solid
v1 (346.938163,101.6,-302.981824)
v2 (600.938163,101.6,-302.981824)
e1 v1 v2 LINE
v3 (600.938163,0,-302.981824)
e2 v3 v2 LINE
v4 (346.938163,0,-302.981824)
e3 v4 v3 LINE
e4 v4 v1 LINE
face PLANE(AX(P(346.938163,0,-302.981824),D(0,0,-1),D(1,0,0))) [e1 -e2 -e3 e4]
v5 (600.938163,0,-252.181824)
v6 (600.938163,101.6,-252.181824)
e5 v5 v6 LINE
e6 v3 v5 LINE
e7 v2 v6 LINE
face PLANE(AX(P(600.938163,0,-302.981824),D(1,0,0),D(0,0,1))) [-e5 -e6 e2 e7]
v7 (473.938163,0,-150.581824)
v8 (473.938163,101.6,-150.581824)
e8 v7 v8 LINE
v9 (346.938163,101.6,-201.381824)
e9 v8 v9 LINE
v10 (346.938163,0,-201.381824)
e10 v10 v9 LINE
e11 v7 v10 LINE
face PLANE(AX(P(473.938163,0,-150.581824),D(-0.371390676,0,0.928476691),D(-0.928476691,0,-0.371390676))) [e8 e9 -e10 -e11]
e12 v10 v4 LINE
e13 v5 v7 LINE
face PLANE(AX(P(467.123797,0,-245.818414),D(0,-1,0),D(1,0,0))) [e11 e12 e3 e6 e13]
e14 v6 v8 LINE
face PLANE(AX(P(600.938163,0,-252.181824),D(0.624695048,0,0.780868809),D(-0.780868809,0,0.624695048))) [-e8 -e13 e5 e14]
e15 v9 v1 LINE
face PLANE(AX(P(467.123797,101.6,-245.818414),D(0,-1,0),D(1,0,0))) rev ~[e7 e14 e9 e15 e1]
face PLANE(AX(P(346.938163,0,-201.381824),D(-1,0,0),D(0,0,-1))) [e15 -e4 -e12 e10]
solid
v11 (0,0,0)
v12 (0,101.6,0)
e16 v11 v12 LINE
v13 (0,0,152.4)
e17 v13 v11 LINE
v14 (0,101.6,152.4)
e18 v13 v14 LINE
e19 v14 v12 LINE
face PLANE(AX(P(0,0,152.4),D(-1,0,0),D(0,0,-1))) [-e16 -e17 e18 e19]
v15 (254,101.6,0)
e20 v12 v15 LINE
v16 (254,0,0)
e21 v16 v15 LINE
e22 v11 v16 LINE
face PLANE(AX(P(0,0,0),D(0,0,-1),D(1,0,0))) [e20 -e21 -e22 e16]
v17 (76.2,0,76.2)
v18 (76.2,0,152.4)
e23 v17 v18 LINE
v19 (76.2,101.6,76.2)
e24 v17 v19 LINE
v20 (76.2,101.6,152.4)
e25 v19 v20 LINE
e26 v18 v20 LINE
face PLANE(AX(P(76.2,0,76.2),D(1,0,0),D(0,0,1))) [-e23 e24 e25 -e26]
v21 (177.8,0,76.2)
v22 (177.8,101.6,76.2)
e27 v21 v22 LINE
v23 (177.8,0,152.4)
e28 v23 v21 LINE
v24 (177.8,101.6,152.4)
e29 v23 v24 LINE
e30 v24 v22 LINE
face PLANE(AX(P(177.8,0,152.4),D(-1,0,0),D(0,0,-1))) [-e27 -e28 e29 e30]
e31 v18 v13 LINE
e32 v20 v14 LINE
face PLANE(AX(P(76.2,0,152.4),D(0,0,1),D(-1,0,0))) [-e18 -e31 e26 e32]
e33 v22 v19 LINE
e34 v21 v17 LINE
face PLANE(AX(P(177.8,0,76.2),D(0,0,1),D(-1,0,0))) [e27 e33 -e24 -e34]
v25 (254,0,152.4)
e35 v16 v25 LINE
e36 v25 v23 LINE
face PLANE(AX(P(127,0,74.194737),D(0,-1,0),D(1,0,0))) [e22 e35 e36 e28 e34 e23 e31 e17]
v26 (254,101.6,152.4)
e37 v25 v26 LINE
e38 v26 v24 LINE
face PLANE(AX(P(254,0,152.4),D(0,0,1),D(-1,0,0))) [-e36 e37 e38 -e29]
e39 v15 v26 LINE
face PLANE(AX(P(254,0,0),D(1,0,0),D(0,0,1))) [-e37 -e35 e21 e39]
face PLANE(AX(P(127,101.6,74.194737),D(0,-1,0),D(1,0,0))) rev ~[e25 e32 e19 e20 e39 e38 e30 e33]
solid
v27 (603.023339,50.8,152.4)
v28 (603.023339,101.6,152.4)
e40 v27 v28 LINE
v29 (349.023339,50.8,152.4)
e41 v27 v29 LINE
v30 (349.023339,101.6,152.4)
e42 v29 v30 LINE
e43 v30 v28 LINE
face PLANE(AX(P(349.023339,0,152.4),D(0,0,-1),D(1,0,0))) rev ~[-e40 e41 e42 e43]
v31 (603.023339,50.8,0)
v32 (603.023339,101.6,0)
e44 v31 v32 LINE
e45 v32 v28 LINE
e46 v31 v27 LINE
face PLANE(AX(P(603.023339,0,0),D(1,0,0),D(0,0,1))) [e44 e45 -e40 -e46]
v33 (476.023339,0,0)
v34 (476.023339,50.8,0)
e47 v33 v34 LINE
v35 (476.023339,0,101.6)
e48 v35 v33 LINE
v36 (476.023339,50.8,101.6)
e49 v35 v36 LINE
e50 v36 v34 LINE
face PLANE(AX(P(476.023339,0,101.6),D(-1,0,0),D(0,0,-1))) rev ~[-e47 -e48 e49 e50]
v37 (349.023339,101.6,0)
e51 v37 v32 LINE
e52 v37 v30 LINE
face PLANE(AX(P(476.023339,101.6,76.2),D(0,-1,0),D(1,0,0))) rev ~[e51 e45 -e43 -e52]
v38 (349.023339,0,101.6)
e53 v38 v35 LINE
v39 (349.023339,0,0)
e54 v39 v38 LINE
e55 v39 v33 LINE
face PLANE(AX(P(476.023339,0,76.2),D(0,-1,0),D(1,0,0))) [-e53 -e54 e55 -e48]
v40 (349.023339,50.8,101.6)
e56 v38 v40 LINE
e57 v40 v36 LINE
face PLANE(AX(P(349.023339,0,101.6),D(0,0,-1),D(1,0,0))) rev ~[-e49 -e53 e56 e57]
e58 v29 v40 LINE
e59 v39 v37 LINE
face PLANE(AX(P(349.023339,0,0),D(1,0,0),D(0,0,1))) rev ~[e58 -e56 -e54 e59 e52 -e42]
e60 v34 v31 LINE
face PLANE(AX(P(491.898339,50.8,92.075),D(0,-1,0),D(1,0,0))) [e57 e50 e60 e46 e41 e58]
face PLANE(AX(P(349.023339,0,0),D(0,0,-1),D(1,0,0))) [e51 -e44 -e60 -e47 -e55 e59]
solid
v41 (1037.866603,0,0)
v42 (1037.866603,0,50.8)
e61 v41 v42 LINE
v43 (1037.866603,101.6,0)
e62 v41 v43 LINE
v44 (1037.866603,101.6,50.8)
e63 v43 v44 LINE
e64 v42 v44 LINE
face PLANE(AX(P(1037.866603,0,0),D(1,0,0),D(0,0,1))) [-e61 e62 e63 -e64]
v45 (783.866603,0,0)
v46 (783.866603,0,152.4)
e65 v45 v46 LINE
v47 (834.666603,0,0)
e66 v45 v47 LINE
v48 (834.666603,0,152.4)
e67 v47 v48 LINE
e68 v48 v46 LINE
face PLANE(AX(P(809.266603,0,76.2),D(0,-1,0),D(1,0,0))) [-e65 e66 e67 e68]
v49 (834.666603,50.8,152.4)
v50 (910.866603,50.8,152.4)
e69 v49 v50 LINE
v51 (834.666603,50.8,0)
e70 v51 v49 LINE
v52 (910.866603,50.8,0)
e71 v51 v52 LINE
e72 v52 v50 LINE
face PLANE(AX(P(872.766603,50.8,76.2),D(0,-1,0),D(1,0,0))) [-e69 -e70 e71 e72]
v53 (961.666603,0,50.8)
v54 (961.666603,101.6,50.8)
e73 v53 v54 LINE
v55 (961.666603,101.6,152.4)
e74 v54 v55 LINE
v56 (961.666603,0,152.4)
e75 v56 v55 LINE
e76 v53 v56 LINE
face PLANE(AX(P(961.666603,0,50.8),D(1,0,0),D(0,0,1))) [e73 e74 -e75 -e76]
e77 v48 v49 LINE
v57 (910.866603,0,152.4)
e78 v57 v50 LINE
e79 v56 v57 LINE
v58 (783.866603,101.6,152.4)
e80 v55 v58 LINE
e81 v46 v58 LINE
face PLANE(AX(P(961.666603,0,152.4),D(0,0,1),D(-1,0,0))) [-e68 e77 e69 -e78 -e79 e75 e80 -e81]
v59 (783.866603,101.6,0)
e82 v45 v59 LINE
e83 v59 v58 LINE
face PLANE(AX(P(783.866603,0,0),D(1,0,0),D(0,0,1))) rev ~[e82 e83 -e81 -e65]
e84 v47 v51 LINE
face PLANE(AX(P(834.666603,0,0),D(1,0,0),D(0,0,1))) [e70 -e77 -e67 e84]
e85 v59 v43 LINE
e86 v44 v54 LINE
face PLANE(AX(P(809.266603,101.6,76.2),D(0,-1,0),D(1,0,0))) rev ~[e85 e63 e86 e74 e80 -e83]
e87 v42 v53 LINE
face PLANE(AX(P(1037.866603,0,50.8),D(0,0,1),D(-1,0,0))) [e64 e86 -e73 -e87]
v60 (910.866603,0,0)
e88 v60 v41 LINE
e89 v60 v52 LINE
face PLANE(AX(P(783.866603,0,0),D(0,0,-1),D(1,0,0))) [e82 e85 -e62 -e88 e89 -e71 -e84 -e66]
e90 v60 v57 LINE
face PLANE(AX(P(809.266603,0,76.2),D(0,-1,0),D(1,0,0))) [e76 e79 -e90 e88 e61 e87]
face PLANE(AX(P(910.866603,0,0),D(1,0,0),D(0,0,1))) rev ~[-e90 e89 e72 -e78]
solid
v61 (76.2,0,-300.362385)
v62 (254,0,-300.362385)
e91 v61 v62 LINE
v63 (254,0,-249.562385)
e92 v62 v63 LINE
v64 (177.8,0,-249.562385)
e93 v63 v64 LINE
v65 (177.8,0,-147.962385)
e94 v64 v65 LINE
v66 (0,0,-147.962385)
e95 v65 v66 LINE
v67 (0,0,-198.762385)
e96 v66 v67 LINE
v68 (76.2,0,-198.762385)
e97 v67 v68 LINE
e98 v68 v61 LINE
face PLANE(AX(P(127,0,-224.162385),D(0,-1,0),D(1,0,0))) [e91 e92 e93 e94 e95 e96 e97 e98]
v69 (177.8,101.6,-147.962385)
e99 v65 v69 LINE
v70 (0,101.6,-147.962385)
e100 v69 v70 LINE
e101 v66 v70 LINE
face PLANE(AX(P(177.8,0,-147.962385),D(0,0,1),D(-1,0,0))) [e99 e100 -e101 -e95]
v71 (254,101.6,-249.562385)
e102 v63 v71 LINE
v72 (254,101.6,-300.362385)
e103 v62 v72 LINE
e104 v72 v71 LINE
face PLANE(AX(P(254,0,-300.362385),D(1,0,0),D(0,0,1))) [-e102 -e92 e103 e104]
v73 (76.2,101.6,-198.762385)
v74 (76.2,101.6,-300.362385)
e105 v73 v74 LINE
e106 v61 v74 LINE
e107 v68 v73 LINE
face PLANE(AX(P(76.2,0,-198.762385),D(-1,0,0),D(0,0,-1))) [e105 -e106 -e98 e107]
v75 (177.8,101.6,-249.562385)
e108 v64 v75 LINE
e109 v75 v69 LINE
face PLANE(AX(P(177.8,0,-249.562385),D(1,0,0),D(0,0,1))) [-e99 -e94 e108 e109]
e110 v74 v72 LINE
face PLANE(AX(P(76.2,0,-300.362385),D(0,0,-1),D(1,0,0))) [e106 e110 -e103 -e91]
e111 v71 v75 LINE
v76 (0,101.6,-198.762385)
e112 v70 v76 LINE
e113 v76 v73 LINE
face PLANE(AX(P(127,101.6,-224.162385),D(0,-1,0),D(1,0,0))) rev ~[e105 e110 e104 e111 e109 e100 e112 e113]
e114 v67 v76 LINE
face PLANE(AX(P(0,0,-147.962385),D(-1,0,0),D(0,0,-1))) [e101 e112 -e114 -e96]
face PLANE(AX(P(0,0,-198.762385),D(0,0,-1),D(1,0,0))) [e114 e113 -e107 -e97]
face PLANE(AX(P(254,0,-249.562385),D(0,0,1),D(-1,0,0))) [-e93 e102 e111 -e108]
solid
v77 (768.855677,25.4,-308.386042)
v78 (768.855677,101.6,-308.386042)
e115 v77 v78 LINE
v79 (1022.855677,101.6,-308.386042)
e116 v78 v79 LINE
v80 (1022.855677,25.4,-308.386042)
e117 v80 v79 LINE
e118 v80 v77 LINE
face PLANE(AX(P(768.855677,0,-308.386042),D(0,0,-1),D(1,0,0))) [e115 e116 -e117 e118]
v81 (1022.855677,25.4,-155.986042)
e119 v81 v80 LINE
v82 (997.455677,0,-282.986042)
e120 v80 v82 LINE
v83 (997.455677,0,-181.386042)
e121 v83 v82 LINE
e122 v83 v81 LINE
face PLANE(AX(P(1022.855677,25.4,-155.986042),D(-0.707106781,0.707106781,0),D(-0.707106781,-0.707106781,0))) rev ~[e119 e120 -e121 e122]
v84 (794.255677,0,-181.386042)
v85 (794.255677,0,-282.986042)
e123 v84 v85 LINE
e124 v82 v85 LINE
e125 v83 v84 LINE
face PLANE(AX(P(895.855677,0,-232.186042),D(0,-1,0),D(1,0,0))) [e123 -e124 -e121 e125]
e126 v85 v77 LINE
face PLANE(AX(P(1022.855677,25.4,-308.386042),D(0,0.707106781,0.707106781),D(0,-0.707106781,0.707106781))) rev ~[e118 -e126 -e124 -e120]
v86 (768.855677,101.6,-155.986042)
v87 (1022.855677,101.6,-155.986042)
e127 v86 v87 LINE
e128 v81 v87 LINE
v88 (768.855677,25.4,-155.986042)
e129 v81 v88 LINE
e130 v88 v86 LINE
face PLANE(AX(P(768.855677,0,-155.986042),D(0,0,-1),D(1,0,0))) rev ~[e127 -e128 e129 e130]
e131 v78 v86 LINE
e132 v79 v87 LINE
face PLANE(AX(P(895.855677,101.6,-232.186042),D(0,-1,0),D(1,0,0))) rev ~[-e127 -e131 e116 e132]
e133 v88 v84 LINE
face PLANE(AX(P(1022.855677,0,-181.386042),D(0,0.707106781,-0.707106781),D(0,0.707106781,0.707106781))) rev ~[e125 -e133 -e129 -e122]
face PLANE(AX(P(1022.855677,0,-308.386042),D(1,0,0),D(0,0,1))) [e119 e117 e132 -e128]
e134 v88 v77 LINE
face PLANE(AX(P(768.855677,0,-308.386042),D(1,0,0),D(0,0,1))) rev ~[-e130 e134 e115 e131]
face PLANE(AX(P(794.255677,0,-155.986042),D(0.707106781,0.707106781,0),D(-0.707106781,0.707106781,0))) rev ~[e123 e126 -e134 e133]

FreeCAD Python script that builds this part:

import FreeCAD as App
import Part
import Sketcher

V = App.Vector
Q = App.Units.Quantity


def add_polygon(sketch, points):
    """Adds a closed chain of lines whose ends are joined by coincident constraints."""
    first, n = sketch.GeometryCount, len(points)
    for a, b in zip(points, points[1:] + points[:1]):
        sketch.addGeometry(Part.LineSegment(App.Vector(*a, 0), App.Vector(*b, 0)), False)
    for i in range(n):
        sketch.addConstraint(Sketcher.Constraint("Coincident", first + i, 2, first + (i + 1) % n, 1))

doc = App.newDocument("Part")
body = doc.addObject("PartDesign::Body", "Body")

# Sketch on XZ plane
sketch1 = body.newObject("Sketcher::SketchObject", "Sketch")
sketch1.AttachmentSupport = (doc.getObject("XZ_Plane"), [""])
sketch1.MapMode = "FlatFace"
add_polygon(sketch1, [(0, 152), (0, 0), (254, 0), (254, 152), (178, 152), (178, 76), (76, 76), (76, 152)])  # lines 0-7
sketch1.addConstraint([
    Sketcher.Constraint("Vertical", 0),
    Sketcher.Constraint("Horizontal", 1),
    Sketcher.Constraint("Vertical", 2),
    Sketcher.Constraint("Horizontal", 3),
    Sketcher.Constraint("Vertical", 4),
    Sketcher.Constraint("Horizontal", 5),
    Sketcher.Constraint("Vertical", 6),
    Sketcher.Constraint("Horizontal", 7),
    Sketcher.Constraint("Coincident", 0, 2, -1, 1),
    Sketcher.Constraint("Horizontal", 3, 2, 6, 2),
    Sketcher.Constraint("Equal", 3, 7),
    Sketcher.Constraint("Equal", 7, 4),
    Sketcher.Constraint("DistanceX", 1, 1, 1, 2, Q("10 in")),
    Sketcher.Constraint("DistanceX", 3, 2, 3, 1, Q("3 in")),
    Sketcher.Constraint("DistanceY", 0, 2, 0, 1, Q("6 in")),
])
pad1 = body.newObject("PartDesign::Pad", "Pad")
pad1.Profile = sketch1
pad1.Length = Q("4 in")
pad1.Reversed = True
body2 = doc.addObject("PartDesign::Body", "Body001")

# Sketch on XZ plane
sketch2 = body2.newObject("Sketcher::SketchObject", "Sketch001")
sketch2.AttachmentSupport = (doc.getObject("XZ_Plane001"), [""])
sketch2.MapMode = "FlatFace"
add_polygon(sketch2, [(349, 152), (349, 0), (603, 0), (603, 152)])  # lines 0-3
sketch2.addConstraint([
    Sketcher.Constraint("Vertical", 0),
    Sketcher.Constraint("Horizontal", 1),
    Sketcher.Constraint("Vertical", 2),
    Sketcher.Constraint("Horizontal", 3),
    Sketcher.Constraint("PointOnObject", 0, 2, -1),
    Sketcher.Constraint("DistanceX", 1, 1, 1, 2, Q("10 in")),
    Sketcher.Constraint("DistanceY", 0, 2, 0, 1, Q("6 in")),
    Sketcher.Constraint("DistanceX", -1, 1, 0, 2, 349.023339),
])
pad2 = body2.newObject("PartDesign::Pad", "Pad001")
pad2.Profile = sketch2
pad2.Length = Q("4 in")
pad2.Reversed = True

# Sketch on XZ plane
sketch3 = body2.newObject("Sketcher::SketchObject", "Sketch002")
sketch3.AttachmentSupport = (doc.getObject("XZ_Plane001"), [""])
sketch3.MapMode = "FlatFace"
add_polygon(sketch3, [(603, 152), (349, 152), (349, 102), (476, 102), (476, 0), (603, 0)])  # lines 0-5
sketch3.addConstraint([
    Sketcher.Constraint("Horizontal", 0),
    Sketcher.Constraint("Vertical", 1),
    Sketcher.Constraint("Horizontal", 2),
    Sketcher.Constraint("Vertical", 3),
    Sketcher.Constraint("Horizontal", 4),
    Sketcher.Constraint("Vertical", 5),
    Sketcher.Constraint("PointOnObject", 3, 2, -1),
    Sketcher.Constraint("Equal", 2, 4),
    Sketcher.Constraint("DistanceX", 0, 2, 0, 1, Q("10 in")),
    Sketcher.Constraint("DistanceY", 1, 2, 1, 1, Q("2 in")),
    Sketcher.Constraint("DistanceY", 3, 2, 3, 1, Q("4 in")),
    Sketcher.Constraint("DistanceX", -1, 1, 0, 2, 349.023339),
])
pocket1 = body2.newObject("PartDesign::Pocket", "Pocket")
pocket1.Profile = sketch3
pocket1.Length = Q("2 in")
body3 = doc.addObject("PartDesign::Body", "Body002")

# Sketch on XZ plane
sketch4 = body3.newObject("Sketcher::SketchObject", "Sketch003")
sketch4.AttachmentSupport = (doc.getObject("XZ_Plane002"), [""])
sketch4.MapMode = "FlatFace"
add_polygon(sketch4, [(784, 152), (784, 0), (1038, 0), (1038, 51), (962, 51), (962, 152)])  # lines 0-5
sketch4.addConstraint([
    Sketcher.Constraint("Vertical", 0),
    Sketcher.Constraint("Horizontal", 1),
    Sketcher.Constraint("Vertical", 2),
    Sketcher.Constraint("Horizontal", 3),
    Sketcher.Constraint("Vertical", 4),
    Sketcher.Constraint("Horizontal", 5),
    Sketcher.Constraint("PointOnObject", 0, 2, -1),
    Sketcher.Constraint("DistanceX", 1, 1, 1, 2, Q("10 in")),
    Sketcher.Constraint("DistanceX", 3, 2, 3, 1, Q("3 in")),
    Sketcher.Constraint("DistanceY", 0, 2, 0, 1, Q("6 in")),
    Sketcher.Constraint("DistanceY", 2, 1, 2, 2, Q("2 in")),
    Sketcher.Constraint("DistanceX", -1, 1, 0, 2, 783.866603),
])
pad3 = body3.newObject("PartDesign::Pad", "Pad002")
pad3.Profile = sketch4
pad3.Length = Q("4 in")
pad3.Reversed = True

# Sketch on XZ plane
sketch5 = body3.newObject("Sketcher::SketchObject", "Sketch004")
sketch5.AttachmentSupport = (doc.getObject("XZ_Plane002"), [""])
sketch5.MapMode = "FlatFace"
add_polygon(sketch5, [(835, 152), (835, 0), (911, 0), (911, 152)])  # lines 0-3
sketch5.addConstraint([
    Sketcher.Constraint("Vertical", 0),
    Sketcher.Constraint("Horizontal", 1),
    Sketcher.Constraint("Vertical", 2),
    Sketcher.Constraint("Horizontal", 3),
    Sketcher.Constraint("PointOnObject", 0, 2, -1),
    Sketcher.Constraint("DistanceX", 1, 1, 1, 2, Q("3 in")),
    Sketcher.Constraint("DistanceY", 0, 2, 0, 1, Q("6 in")),
    Sketcher.Constraint("DistanceX", -1, 1, 0, 2, 834.666603),
])
pocket2 = body3.newObject("PartDesign::Pocket", "Pocket001")
pocket2.Profile = sketch5
pocket2.Length = Q("2 in")
body4 = doc.addObject("PartDesign::Body", "Body003")

# Sketch on XZ plane
sketch6 = body4.newObject("Sketcher::SketchObject", "Sketch005")
sketch6.AttachmentSupport = (doc.getObject("XZ_Plane003"), [""])
sketch6.MapMode = "FlatFace"
add_polygon(sketch6, [(178, -148), (0, -148), (0, -199), (76, -199), (76, -300), (254, -300), (254, -250), (178, -250)])  # lines 0-7
sketch6.addConstraint([
    Sketcher.Constraint("Horizontal", 0),
    Sketcher.Constraint("Vertical", 1),
    Sketcher.Constraint("Horizontal", 2),
    Sketcher.Constraint("Vertical", 3),
    Sketcher.Constraint("Horizontal", 4),
    Sketcher.Constraint("Vertical", 5),
    Sketcher.Constraint("Horizontal", 6),
    Sketcher.Constraint("Vertical", 7),
    Sketcher.Constraint("PointOnObject", 0, 2, -2),
    Sketcher.Constraint("Equal", 0, 4),
    Sketcher.Constraint("Equal", 1, 5),
    Sketcher.Constraint("DistanceX", 0, 2, 0, 1, Q("7 in")),
    Sketcher.Constraint("DistanceX", 2, 1, 2, 2, Q("3 in")),
    Sketcher.Constraint("DistanceY", 1, 2, 1, 1, Q("2 in")),
    Sketcher.Constraint("DistanceY", 3, 2, 3, 1, Q("4 in")),
    Sketcher.Constraint("DistanceY", 0, 2, -1, 1, 147.962385),
])
pad4 = body4.newObject("PartDesign::Pad", "Pad003")
pad4.Profile = sketch6
pad4.Length = Q("4 in")
pad4.Reversed = True
body5 = doc.addObject("PartDesign::Body", "Body004")

# Sketch on XZ plane
sketch7 = body5.newObject("Sketcher::SketchObject", "Sketch006")
sketch7.AttachmentSupport = (doc.getObject("XZ_Plane004"), [""])
sketch7.MapMode = "FlatFace"
add_polygon(sketch7, [(347, -201), (347, -303), (601, -303), (601, -252), (474, -151)])  # lines 0-4
sketch7.addConstraint([
    Sketcher.Constraint("Vertical", 0),
    Sketcher.Constraint("Horizontal", 1),
    Sketcher.Constraint("Vertical", 2),
    Sketcher.Constraint("DistanceX", 1, 1, 1, 2, Q("10 in")),
    Sketcher.Constraint("DistanceY", 0, 2, 0, 1, Q("4 in")),
    Sketcher.Constraint("DistanceY", 2, 1, 2, 2, Q("2 in")),
    Sketcher.Constraint("DistanceX", 3, 2, 2, 2, Q("5 in")),
    Sketcher.Constraint("DistanceY", 2, 2, 3, 2, Q("4 in")),
    Sketcher.Constraint("DistanceX", -1, 1, 0, 2, 346.938163),
    Sketcher.Constraint("DistanceY", 0, 2, -1, 1, 302.981824),
])
pad5 = body5.newObject("PartDesign::Pad", "Pad004")
pad5.Profile = sketch7
pad5.Length = Q("4 in")
pad5.Reversed = True
body6 = doc.addObject("PartDesign::Body", "Body005")

# Sketch on XZ plane
sketch8 = body6.newObject("Sketcher::SketchObject", "Sketch007")
sketch8.AttachmentSupport = (doc.getObject("XZ_Plane005"), [""])
sketch8.MapMode = "FlatFace"
add_polygon(sketch8, [(769, -156), (769, -308), (1023, -308), (1023, -156)])  # lines 0-3
sketch8.addConstraint([
    Sketcher.Constraint("Vertical", 0),
    Sketcher.Constraint("Horizontal", 1),
    Sketcher.Constraint("Vertical", 2),
    Sketcher.Constraint("Horizontal", 3),
    Sketcher.Constraint("DistanceX", 1, 1, 1, 2, Q("10 in")),
    Sketcher.Constraint("DistanceY", 0, 2, 0, 1, Q("6 in")),
    Sketcher.Constraint("DistanceY", 0, 2, -1, 1, 308.386042),
    Sketcher.Constraint("DistanceX", -1, 1, 0, 2, 768.855677),
])
pad6 = body6.newObject("PartDesign::Pad", "Pad005")
pad6.Profile = sketch8
pad6.Length = Q("4 in")
pad6.Reversed = True

# Sketch on YZ plane
sketch9 = body6.newObject("Sketcher::SketchObject", "Sketch008")
sketch9.AttachmentSupport = (doc.getObject("YZ_Plane005"), [""])
sketch9.MapMode = "FlatFace"
sketch9.AttachmentOffset = App.Placement(V(0, 0, 1022.855677), App.Rotation())
add_polygon(sketch9, [(0, -181), (25, -156), (0, -156)])  # lines 0-2
add_polygon(sketch9, [(25, -308), (0, -283), (0, -308)])  # lines 3-5
sketch9.addConstraint([
    Sketcher.Constraint("Horizontal", 1),
    Sketcher.Constraint("Vertical", 2),
    Sketcher.Constraint("Vertical", 4),
    Sketcher.Constraint("Horizontal", 5),
    Sketcher.Constraint("PointOnObject", 1, 2, -2),
    Sketcher.Constraint("PointOnObject", 3, 2, -2),
    Sketcher.Constraint("Perpendicular", 0, 3),
    Sketcher.Constraint("Vertical", 0, 2, 5, 2),
    Sketcher.Constraint("Equal", 5, 2),
    Sketcher.Constraint("DistanceX", 1, 2, 1, 1, Q("1 in")),
    Sketcher.Constraint("DistanceY", 3, 2, 2, 2, Q("4 in")),
    Sketcher.Constraint("DistanceY", 0, 2, -1, 1, 155.986042),
])
pocket3 = body6.newObject("PartDesign::Pocket", "Pocket002")
pocket3.Profile = sketch9
pocket3.Length = Q("10 in")

# Sketch on XY plane
sketch10 = body6.newObject("Sketcher::SketchObject", "Sketch009")
sketch10.AttachmentSupport = (doc.getObject("XY_Plane005"), [""])
sketch10.MapMode = "FlatFace"
sketch10.AttachmentOffset = App.Placement(V(0, 0, -155.986042), App.Rotation())
add_polygon(sketch10, [(794, 0), (769, 25), (769, 0)])  # lines 0-2
add_polygon(sketch10, [(1023, 0), (1023, 25), (997, 0)])  # lines 3-5
sketch10.addConstraint([
    Sketcher.Constraint("Vertical", 1),
    Sketcher.Constraint("Horizontal", 2),
    Sketcher.Constraint("Vertical", 3),
    Sketcher.Constraint("Horizontal", 5),
    Sketcher.Constraint("PointOnObject", 1, 2, -1),
    Sketcher.Constraint("PointOnObject", 4, 2, -1),
    Sketcher.Constraint("Perpendicular", 0, 4),
    Sketcher.Constraint("Horizontal", 0, 2, 3, 2),
    Sketcher.Constraint("Equal", 2, 5),
    Sketcher.Constraint("DistanceX", 2, 1, 2, 2, Q("1 in")),
    Sketcher.Constraint("DistanceX", 2, 2, 3, 2, Q("9 in")),
    Sketcher.Constraint("DistanceX", -1, 1, 0, 2, 768.855677),
])
pocket4 = body6.newObject("PartDesign::Pocket", "Pocket003")
pocket4.Profile = sketch10
pocket4.Length = Q("6 in")

doc.recompute()
